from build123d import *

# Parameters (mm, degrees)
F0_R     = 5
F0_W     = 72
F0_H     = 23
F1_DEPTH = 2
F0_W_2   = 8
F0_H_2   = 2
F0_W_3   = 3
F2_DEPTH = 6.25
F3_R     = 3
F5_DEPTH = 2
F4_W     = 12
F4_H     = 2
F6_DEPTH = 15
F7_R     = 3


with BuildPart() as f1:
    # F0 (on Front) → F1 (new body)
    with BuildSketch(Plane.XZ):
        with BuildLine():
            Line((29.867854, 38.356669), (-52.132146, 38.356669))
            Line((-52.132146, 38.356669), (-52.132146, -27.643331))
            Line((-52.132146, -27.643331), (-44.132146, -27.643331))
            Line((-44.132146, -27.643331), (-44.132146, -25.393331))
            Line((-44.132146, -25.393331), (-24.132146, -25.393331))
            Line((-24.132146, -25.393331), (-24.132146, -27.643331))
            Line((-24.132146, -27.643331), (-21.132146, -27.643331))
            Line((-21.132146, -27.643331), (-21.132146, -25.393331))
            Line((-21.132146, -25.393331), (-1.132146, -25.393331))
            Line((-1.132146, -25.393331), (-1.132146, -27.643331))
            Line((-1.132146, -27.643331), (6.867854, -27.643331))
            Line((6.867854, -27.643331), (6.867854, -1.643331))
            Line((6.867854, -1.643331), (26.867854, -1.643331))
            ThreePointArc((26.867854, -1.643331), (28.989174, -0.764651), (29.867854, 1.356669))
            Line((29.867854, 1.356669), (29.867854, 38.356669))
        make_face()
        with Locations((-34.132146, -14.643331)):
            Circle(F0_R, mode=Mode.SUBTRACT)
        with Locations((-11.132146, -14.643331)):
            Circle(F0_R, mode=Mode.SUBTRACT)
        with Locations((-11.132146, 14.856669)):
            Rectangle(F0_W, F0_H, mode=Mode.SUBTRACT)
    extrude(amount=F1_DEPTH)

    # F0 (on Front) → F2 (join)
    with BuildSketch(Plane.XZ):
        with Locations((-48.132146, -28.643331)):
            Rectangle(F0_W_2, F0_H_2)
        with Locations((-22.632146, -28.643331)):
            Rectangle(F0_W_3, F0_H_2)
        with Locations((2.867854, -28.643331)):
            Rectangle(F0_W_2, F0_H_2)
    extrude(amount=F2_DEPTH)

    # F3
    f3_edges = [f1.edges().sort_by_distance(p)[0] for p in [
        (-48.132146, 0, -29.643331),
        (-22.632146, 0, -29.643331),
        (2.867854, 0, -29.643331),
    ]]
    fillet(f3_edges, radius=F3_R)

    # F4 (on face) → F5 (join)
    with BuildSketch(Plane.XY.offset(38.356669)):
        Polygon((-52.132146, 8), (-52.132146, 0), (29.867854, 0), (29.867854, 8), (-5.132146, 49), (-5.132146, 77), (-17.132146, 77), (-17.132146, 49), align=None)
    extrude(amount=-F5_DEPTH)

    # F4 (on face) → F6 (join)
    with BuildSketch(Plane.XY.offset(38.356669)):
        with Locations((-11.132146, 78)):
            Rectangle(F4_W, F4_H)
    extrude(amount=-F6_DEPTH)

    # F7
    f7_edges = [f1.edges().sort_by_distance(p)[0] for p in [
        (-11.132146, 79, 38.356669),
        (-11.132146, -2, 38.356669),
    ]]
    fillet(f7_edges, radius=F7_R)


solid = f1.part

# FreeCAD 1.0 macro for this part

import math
import FreeCAD as App
import Part
import Sketcher

V = App.Vector


def edges_at(feature, points):
    """Names of the edges that pass closest to the given points."""
    edges = feature.Shape.Edges
    near = lambda p: min(range(len(edges)), key=lambda i: edges[i].distToShape(Part.Vertex(*p))[0])
    return sorted({f"Edge{near(p) + 1}" for p in points})


def add_polygon(sketch, points):
    """Adds a closed chain of lines whose ends are joined by coincident constraints."""
    first, n = sketch.GeometryCount, len(points)
    for a, b in zip(points, points[1:] + points[:1]):
        sketch.addGeometry(Part.LineSegment(App.Vector(*a, 0), App.Vector(*b, 0)), False)
    for i in range(n):
        sketch.addConstraint(Sketcher.Constraint("Coincident", first + i, 2, first + (i + 1) % n, 1))

doc = App.newDocument("Part")
body = doc.addObject("PartDesign::Body", "Body")

sketch1 = doc.addObject("Sketcher::SketchObject", "Sketch")
body.addObject(sketch1)
sketch1.AttachmentSupport = (doc.XZ_Plane, [""])
sketch1.MapMode = "FlatFace"
sketch1.addGeometry(Part.LineSegment(V(29.9, 38.4, 0), V(-52.1, 38.4, 0)), False)
sketch1.addGeometry(Part.LineSegment(V(-52.1, 38.4, 0), V(-52.1, -27.6, 0)), False)
sketch1.addGeometry(Part.LineSegment(V(-52.1, -27.6, 0), V(-44.1, -27.6, 0)), False)
sketch1.addGeometry(Part.LineSegment(V(-44.1, -27.6, 0), V(-44.1, -25.4, 0)), False)
sketch1.addGeometry(Part.LineSegment(V(-44.1, -25.4, 0), V(-24.1, -25.4, 0)), False)
sketch1.addGeometry(Part.LineSegment(V(-24.1, -25.4, 0), V(-24.1, -27.6, 0)), False)
sketch1.addGeometry(Part.LineSegment(V(-24.1, -27.6, 0), V(-21.1, -27.6, 0)), False)
sketch1.addGeometry(Part.LineSegment(V(-21.1, -27.6, 0), V(-21.1, -25.4, 0)), False)
sketch1.addGeometry(Part.LineSegment(V(-21.1, -25.4, 0), V(-1.1, -25.4, 0)), False)
sketch1.addGeometry(Part.LineSegment(V(-1.1, -25.4, 0), V(-1.1, -27.6, 0)), False)
sketch1.addGeometry(Part.LineSegment(V(-1.1, -27.6, 0), V(6.9, -27.6, 0)), False)
sketch1.addGeometry(Part.LineSegment(V(6.9, -27.6, 0), V(6.9, -1.6, 0)), False)
sketch1.addGeometry(Part.LineSegment(V(6.9, -1.6, 0), V(26.9, -1.6, 0)), False)
sketch1.addGeometry(Part.ArcOfCircle(Part.Circle(V(26.9, 1.4, 0), V(0, 0, 1), 3), math.radians(-90), math.radians(0)), False)
sketch1.addGeometry(Part.LineSegment(V(29.9, 1.4, 0), V(29.9, 38.4, 0)), False)
sketch1.addGeometry(Part.Circle(V(-34.1, -14.6, 0), V(0, 0, 1), 5), False)
sketch1.addGeometry(Part.Circle(V(-11.1, -14.6, 0), V(0, 0, 1), 5), False)
add_polygon(sketch1, [(24.9, 3.4), (-47.1, 3.4), (-47.1, 26.4), (24.9, 26.4)])
sketch1.addConstraint([
    Sketcher.Constraint("Coincident", 0, 2, 1, 1),
    Sketcher.Constraint("Coincident", 1, 2, 2, 1),
    Sketcher.Constraint("Coincident", 2, 2, 3, 1),
    Sketcher.Constraint("Coincident", 3, 2, 4, 1),
    Sketcher.Constraint("Coincident", 4, 2, 5, 1),
    Sketcher.Constraint("Coincident", 5, 2, 6, 1),
    Sketcher.Constraint("Coincident", 6, 2, 7, 1),
    Sketcher.Constraint("Coincident", 7, 2, 8, 1),
    Sketcher.Constraint("Coincident", 8, 2, 9, 1),
    Sketcher.Constraint("Coincident", 9, 2, 10, 1),
    Sketcher.Constraint("Coincident", 10, 2, 11, 1),
    Sketcher.Constraint("Coincident", 11, 2, 12, 1),
    Sketcher.Constraint("Tangent", 12, 2, 13, 1),
    Sketcher.Constraint("Tangent", 13, 2, 14, 1),
    Sketcher.Constraint("Coincident", 14, 2, 0, 1),
    Sketcher.Constraint("Horizontal", 0),
    Sketcher.Constraint("Vertical", 1),
    Sketcher.Constraint("Horizontal", 2),
    Sketcher.Constraint("Vertical", 3),
    Sketcher.Constraint("Horizontal", 4),
    Sketcher.Constraint("Vertical", 5),
    Sketcher.Constraint("Horizontal", 6),
    Sketcher.Constraint("Vertical", 7),
    Sketcher.Constraint("Horizontal", 8),
    Sketcher.Constraint("Vertical", 9),
    Sketcher.Constraint("Horizontal", 10),
    Sketcher.Constraint("Vertical", 11),
    Sketcher.Constraint("Horizontal", 12),
    Sketcher.Constraint("Vertical", 14),
    Sketcher.Constraint("Horizontal", 17),
    Sketcher.Constraint("Vertical", 18),
    Sketcher.Constraint("Horizontal", 19),
    Sketcher.Constraint("Vertical", 20),
    Sketcher.Constraint("Equal", 15, 16),
    Sketcher.Constraint("Horizontal", 15, 3, 16, 3),
    Sketcher.Constraint("Horizontal", 2, 2, 5, 2),
    Sketcher.Constraint("Horizontal", 4, 2, 7, 2),
    Sketcher.Constraint("Horizontal", 6, 2, 9, 2),
    Sketcher.Constraint("Equal", 4, 8),
    Sketcher.Constraint("Equal", 2, 10),
    Sketcher.Constraint("Equal", 8, 12),
    Sketcher.Constraint("Diameter", 15, 10.0),
    Sketcher.Constraint("Radius", 13, 3.000001),
    Sketcher.Constraint("DistanceX", 0, 2, 0, 1, 82.0),
    Sketcher.Constraint("DistanceX", 2, 1, 2, 2, 8.0),
    Sketcher.Constraint("DistanceX", 4, 1, 4, 2, 20.0),
    Sketcher.Constraint("DistanceX", 17, 2, 17, 1, 72.0),
    Sketcher.Constraint("DistanceY", 1, 2, 1, 1, 66.0),
    Sketcher.Constraint("DistanceY", 11, 1, 11, 2, 26.0),
    Sketcher.Constraint("DistanceY", 18, 1, 18, 2, 23.0),
    Sketcher.Constraint("DistanceX", 15, 3, 13, 3, 60.999999),
    Sketcher.Constraint("DistanceY", 15, 3, 13, 3, 16.000001),
    Sketcher.Constraint("DistanceX", 15, 3, 16, 3, 23.0),
    Sketcher.Constraint("DistanceX", 17, 2, 15, 3, 13.0),
    Sketcher.Constraint("DistanceY", 15, 3, 17, 2, 18.0),
    Sketcher.Constraint("DistanceY", 3, 1, 3, 2, 2.25),
    Sketcher.Constraint("DistanceY", -1, 1, 13, 3, 1.35667),
    Sketcher.Constraint("DistanceX", -1, 1, 13, 3, 26.867853),
])
pad1 = doc.addObject("PartDesign::Pad", "Pad")
body.addObject(pad1)
pad1.Profile = sketch1
pad1.Length = 2

sketch2 = doc.addObject("Sketcher::SketchObject", "Sketch001")
body.addObject(sketch2)
sketch2.AttachmentSupport = (doc.XZ_Plane, [""])
sketch2.MapMode = "FlatFace"
add_polygon(sketch2, [(-52.1, -27.6), (-52.1, -29.6), (-44.1, -29.6), (-44.1, -27.6)])
add_polygon(sketch2, [(-24.1, -27.6), (-24.1, -29.6), (-21.1, -29.6), (-21.1, -27.6)])
add_polygon(sketch2, [(-1.1, -27.6), (-1.1, -29.6), (6.9, -29.6), (6.9, -27.6)])
sketch2.addConstraint([
    Sketcher.Constraint("Vertical", 0),
    Sketcher.Constraint("Horizontal", 1),
    Sketcher.Constraint("Vertical", 2),
    Sketcher.Constraint("Horizontal", 3),
    Sketcher.Constraint("Vertical", 4),
    Sketcher.Constraint("Horizontal", 5),
    Sketcher.Constraint("Vertical", 6),
    Sketcher.Constraint("Horizontal", 7),
    Sketcher.Constraint("Vertical", 8),
    Sketcher.Constraint("Horizontal", 9),
    Sketcher.Constraint("Vertical", 10),
    Sketcher.Constraint("Horizontal", 11),
    Sketcher.Constraint("Horizontal", 1, 2, 4, 2),
    Sketcher.Constraint("Horizontal", 3, 2, 6, 2),
    Sketcher.Constraint("Horizontal", 5, 2, 8, 2),
    Sketcher.Constraint("Horizontal", 7, 2, 10, 2),
    Sketcher.Constraint("Equal", 3, 9),
    Sketcher.Constraint("DistanceX", 1, 1, 1, 2, 8.0),
    Sketcher.Constraint("DistanceX", 5, 1, 5, 2, 3.0),
    Sketcher.Constraint("DistanceY", 0, 2, 0, 1, 2.0),
    Sketcher.Constraint("DistanceX", 1, 2, 4, 2, 20.0),
    Sketcher.Constraint("DistanceX", 5, 2, 8, 2, 20.0),
    Sketcher.Constraint("DistanceY", 0, 2, -1, 1, 29.643331),
    Sketcher.Constraint("DistanceX", 0, 2, -1, 1, 52.132146),
])
pad2 = doc.addObject("PartDesign::Pad", "Pad001")
body.addObject(pad2)
pad2.Profile = sketch2
pad2.Length = 6.25
doc.recompute()

fillet = doc.addObject("PartDesign::Fillet", "Fillet")
body.addObject(fillet)
fillet.Base = (pad2, edges_at(pad2, [(-48.132, 0, -29.643), (-22.632, 0, -29.643), (2.868, 0, -29.643)]))
fillet.Radius = 3

sketch3 = doc.addObject("Sketcher::SketchObject", "Sketch002")
body.addObject(sketch3)
sketch3.AttachmentSupport = (doc.XY_Plane, [""])
sketch3.MapMode = "FlatFace"
sketch3.AttachmentOffset = App.Placement(V(0, 0, 38.356669), App.Rotation())
add_polygon(sketch3, [(-52, 8), (-52, 0), (30, 0), (30, 8), (-5, 49), (-5, 77), (-17, 77), (-17, 49)])
sketch3.addConstraint([
    Sketcher.Constraint("Vertical", 0),
    Sketcher.Constraint("Horizontal", 1),
    Sketcher.Constraint("Vertical", 2),
    Sketcher.Constraint("Vertical", 4),
    Sketcher.Constraint("Horizontal", 5),
    Sketcher.Constraint("Vertical", 6),
    Sketcher.Constraint("PointOnObject", 0, 2, -1),
    Sketcher.Constraint("Horizontal", 3, 2, 6, 2),
    Sketcher.Constraint("Horizontal", 2, 2, 7, 2),
    Sketcher.Constraint("Equal", 3, 7),
    Sketcher.Constraint("DistanceX", 1, 1, 1, 2, 82.0),
    Sketcher.Constraint("DistanceX", 5, 2, 5, 1, 12.0),
    Sketcher.Constraint("DistanceY", 0, 2, 0, 1, 8.0),
    Sketcher.Constraint("DistanceY", 4, 1, 4, 2, 28.0),
    Sketcher.Constraint("DistanceY", -1, 1, 3, 2, 49.0),
    Sketcher.Constraint("DistanceX", 0, 2, -1, 1, 52.132146),
])
pad3 = doc.addObject("PartDesign::Pad", "Pad002")
body.addObject(pad3)
pad3.Profile = sketch3
pad3.Length = 2
pad3.Reversed = True

sketch4 = doc.addObject("Sketcher::SketchObject", "Sketch003")
body.addObject(sketch4)
sketch4.AttachmentSupport = (doc.XY_Plane, [""])
sketch4.MapMode = "FlatFace"
sketch4.AttachmentOffset = App.Placement(V(0, 0, 38.356669), App.Rotation())
add_polygon(sketch4, [(-17.1, 79), (-17.1, 77), (-5.1, 77), (-5.1, 79)])
sketch4.addConstraint([
    Sketcher.Constraint("Vertical", 0),
    Sketcher.Constraint("Horizontal", 1),
    Sketcher.Constraint("Vertical", 2),
    Sketcher.Constraint("Horizontal", 3),
    Sketcher.Constraint("DistanceX", 1, 1, 1, 2, 12.0),
    Sketcher.Constraint("DistanceY", 0, 2, 0, 1, 2.0),
    Sketcher.Constraint("DistanceY", -1, 1, 0, 2, 77.0),
    Sketcher.Constraint("DistanceX", 0, 2, -1, 1, 17.132146),
])
pad4 = doc.addObject("PartDesign::Pad", "Pad003")
body.addObject(pad4)
pad4.Profile = sketch4
pad4.Length = 15
pad4.Reversed = True
doc.recompute()

fillet2 = doc.addObject("PartDesign::Fillet", "Fillet001")
body.addObject(fillet2)
fillet2.Base = (pad4, edges_at(pad4, [(-11.132, 79, 38.357), (-11.132, -2, 38.357)]))
fillet2.Radius = 3

doc.recompute()
